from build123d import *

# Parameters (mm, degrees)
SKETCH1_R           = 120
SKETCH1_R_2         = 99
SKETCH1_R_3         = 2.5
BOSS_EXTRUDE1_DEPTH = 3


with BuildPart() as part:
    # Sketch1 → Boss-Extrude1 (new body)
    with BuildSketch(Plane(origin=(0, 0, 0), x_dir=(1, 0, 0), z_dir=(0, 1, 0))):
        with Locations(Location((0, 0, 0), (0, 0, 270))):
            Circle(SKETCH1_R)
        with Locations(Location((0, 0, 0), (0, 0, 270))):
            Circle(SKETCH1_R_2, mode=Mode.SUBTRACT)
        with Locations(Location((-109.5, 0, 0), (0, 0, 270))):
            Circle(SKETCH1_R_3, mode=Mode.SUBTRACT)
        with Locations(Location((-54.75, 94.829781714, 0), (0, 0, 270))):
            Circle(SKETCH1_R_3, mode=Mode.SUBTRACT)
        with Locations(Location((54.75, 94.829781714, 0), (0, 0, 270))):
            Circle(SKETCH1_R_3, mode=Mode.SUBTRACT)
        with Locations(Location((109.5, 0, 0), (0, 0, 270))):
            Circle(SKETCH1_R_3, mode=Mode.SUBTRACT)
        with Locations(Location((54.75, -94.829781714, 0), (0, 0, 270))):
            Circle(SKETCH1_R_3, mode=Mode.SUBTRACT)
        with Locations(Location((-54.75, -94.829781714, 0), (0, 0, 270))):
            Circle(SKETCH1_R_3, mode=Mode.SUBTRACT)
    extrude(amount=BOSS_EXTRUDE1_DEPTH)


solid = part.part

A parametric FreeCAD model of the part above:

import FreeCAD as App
import Part
import Sketcher
from FreeCAD import Vector

doc = App.newDocument("Part")
params = doc.addObject("Spreadsheet::Sheet", "Params")
for row, (alias, value) in enumerate([
    ("sketch1_diameter", "240 mm"),
    ("sketch1_diameter2", "5 mm"),
    ("sketch1_diameter3", "198 mm"),
    ("pad1_length", "3 mm"),
], start=1):
    params.set(f"A{row}", alias)
    params.set(f"B{row}", "=" + value)
    params.setAlias(f"B{row}", alias)

body = doc.addObject("PartDesign::Body", "Body")

# Sketch on XZ plane
sketch1 = doc.addObject("Sketcher::SketchObject", "Sketch")
body.addObject(sketch1)
sketch1.AttachmentSupport = (doc.XZ_Plane, [""])
sketch1.MapMode = "FlatFace"
sketch1.addGeometry([
    Part.Circle(Vector(0, 0, 0), Vector(0, 0, 1), 120),  # 0
    Part.Circle(Vector(-54.75, -94.829782, 0), Vector(0, 0, 1), 2.5),  # 1
    Part.Circle(Vector(-109.5, 0, 0), Vector(0, 0, 1), 2.5),  # 2
    Part.Circle(Vector(-54.75, 94.829782, 0), Vector(0, 0, 1), 2.5),  # 3
    Part.Circle(Vector(54.75, -94.829782, 0), Vector(0, 0, 1), 2.5),  # 4
    Part.Circle(Vector(109.5, 0, 0), Vector(0, 0, 1), 2.5),  # 5
    Part.Circle(Vector(0, 0, 0), Vector(0, 0, 1), 99),  # 6
    Part.Circle(Vector(54.75, 94.829782, 0), Vector(0, 0, 1), 2.5),  # 7
], False)
sketch1.addConstraint([
    Sketcher.Constraint("Coincident", 0, 3, -1, 1),
    Sketcher.Constraint("Coincident", 6, 3, -1, 1),
    Sketcher.Constraint("Equal", 1, 2),
    Sketcher.Constraint("Equal", 2, 3),
    Sketcher.Constraint("Equal", 3, 4),
    Sketcher.Constraint("Equal", 4, 5),
    Sketcher.Constraint("Equal", 5, 7),
    Sketcher.Constraint("Symmetric", 3, 3, 4, 3, -1, 1),
    Sketcher.Constraint("Symmetric", 2, 3, 5, 3, -1, 1),
    Sketcher.Constraint("Symmetric", 1, 3, 7, 3, -1, 1),
    Sketcher.Constraint("Symmetric", 1, 3, 4, 3, -2),
    Sketcher.Constraint("PointOnObject", 2, 3, -1),
    Sketcher.Constraint("Diameter", 0, 240.0),
    Sketcher.Constraint("Diameter", 1, 5.0),
    Sketcher.Constraint("Diameter", 6, 198.0),
    Sketcher.Constraint("DistanceX", 2, 3, 5, 3, 219.0),
    Sketcher.Constraint("DistanceX", 1, 3, 4, 3, 109.5),
    Sketcher.Constraint("DistanceY", 1, 3, -1, 1, 94.829782),
])
sketch1.setExpression("Constraints[12]", "Params.sketch1_diameter")
sketch1.setExpression("Constraints[13]", "Params.sketch1_diameter2")
sketch1.setExpression("Constraints[14]", "Params.sketch1_diameter3")
pad1 = doc.addObject("PartDesign::Pad", "Pad")
body.addObject(pad1)
pad1.Profile = sketch1
pad1.setExpression("Length", "Params.pad1_length")
pad1.Reversed = True

doc.recompute()
